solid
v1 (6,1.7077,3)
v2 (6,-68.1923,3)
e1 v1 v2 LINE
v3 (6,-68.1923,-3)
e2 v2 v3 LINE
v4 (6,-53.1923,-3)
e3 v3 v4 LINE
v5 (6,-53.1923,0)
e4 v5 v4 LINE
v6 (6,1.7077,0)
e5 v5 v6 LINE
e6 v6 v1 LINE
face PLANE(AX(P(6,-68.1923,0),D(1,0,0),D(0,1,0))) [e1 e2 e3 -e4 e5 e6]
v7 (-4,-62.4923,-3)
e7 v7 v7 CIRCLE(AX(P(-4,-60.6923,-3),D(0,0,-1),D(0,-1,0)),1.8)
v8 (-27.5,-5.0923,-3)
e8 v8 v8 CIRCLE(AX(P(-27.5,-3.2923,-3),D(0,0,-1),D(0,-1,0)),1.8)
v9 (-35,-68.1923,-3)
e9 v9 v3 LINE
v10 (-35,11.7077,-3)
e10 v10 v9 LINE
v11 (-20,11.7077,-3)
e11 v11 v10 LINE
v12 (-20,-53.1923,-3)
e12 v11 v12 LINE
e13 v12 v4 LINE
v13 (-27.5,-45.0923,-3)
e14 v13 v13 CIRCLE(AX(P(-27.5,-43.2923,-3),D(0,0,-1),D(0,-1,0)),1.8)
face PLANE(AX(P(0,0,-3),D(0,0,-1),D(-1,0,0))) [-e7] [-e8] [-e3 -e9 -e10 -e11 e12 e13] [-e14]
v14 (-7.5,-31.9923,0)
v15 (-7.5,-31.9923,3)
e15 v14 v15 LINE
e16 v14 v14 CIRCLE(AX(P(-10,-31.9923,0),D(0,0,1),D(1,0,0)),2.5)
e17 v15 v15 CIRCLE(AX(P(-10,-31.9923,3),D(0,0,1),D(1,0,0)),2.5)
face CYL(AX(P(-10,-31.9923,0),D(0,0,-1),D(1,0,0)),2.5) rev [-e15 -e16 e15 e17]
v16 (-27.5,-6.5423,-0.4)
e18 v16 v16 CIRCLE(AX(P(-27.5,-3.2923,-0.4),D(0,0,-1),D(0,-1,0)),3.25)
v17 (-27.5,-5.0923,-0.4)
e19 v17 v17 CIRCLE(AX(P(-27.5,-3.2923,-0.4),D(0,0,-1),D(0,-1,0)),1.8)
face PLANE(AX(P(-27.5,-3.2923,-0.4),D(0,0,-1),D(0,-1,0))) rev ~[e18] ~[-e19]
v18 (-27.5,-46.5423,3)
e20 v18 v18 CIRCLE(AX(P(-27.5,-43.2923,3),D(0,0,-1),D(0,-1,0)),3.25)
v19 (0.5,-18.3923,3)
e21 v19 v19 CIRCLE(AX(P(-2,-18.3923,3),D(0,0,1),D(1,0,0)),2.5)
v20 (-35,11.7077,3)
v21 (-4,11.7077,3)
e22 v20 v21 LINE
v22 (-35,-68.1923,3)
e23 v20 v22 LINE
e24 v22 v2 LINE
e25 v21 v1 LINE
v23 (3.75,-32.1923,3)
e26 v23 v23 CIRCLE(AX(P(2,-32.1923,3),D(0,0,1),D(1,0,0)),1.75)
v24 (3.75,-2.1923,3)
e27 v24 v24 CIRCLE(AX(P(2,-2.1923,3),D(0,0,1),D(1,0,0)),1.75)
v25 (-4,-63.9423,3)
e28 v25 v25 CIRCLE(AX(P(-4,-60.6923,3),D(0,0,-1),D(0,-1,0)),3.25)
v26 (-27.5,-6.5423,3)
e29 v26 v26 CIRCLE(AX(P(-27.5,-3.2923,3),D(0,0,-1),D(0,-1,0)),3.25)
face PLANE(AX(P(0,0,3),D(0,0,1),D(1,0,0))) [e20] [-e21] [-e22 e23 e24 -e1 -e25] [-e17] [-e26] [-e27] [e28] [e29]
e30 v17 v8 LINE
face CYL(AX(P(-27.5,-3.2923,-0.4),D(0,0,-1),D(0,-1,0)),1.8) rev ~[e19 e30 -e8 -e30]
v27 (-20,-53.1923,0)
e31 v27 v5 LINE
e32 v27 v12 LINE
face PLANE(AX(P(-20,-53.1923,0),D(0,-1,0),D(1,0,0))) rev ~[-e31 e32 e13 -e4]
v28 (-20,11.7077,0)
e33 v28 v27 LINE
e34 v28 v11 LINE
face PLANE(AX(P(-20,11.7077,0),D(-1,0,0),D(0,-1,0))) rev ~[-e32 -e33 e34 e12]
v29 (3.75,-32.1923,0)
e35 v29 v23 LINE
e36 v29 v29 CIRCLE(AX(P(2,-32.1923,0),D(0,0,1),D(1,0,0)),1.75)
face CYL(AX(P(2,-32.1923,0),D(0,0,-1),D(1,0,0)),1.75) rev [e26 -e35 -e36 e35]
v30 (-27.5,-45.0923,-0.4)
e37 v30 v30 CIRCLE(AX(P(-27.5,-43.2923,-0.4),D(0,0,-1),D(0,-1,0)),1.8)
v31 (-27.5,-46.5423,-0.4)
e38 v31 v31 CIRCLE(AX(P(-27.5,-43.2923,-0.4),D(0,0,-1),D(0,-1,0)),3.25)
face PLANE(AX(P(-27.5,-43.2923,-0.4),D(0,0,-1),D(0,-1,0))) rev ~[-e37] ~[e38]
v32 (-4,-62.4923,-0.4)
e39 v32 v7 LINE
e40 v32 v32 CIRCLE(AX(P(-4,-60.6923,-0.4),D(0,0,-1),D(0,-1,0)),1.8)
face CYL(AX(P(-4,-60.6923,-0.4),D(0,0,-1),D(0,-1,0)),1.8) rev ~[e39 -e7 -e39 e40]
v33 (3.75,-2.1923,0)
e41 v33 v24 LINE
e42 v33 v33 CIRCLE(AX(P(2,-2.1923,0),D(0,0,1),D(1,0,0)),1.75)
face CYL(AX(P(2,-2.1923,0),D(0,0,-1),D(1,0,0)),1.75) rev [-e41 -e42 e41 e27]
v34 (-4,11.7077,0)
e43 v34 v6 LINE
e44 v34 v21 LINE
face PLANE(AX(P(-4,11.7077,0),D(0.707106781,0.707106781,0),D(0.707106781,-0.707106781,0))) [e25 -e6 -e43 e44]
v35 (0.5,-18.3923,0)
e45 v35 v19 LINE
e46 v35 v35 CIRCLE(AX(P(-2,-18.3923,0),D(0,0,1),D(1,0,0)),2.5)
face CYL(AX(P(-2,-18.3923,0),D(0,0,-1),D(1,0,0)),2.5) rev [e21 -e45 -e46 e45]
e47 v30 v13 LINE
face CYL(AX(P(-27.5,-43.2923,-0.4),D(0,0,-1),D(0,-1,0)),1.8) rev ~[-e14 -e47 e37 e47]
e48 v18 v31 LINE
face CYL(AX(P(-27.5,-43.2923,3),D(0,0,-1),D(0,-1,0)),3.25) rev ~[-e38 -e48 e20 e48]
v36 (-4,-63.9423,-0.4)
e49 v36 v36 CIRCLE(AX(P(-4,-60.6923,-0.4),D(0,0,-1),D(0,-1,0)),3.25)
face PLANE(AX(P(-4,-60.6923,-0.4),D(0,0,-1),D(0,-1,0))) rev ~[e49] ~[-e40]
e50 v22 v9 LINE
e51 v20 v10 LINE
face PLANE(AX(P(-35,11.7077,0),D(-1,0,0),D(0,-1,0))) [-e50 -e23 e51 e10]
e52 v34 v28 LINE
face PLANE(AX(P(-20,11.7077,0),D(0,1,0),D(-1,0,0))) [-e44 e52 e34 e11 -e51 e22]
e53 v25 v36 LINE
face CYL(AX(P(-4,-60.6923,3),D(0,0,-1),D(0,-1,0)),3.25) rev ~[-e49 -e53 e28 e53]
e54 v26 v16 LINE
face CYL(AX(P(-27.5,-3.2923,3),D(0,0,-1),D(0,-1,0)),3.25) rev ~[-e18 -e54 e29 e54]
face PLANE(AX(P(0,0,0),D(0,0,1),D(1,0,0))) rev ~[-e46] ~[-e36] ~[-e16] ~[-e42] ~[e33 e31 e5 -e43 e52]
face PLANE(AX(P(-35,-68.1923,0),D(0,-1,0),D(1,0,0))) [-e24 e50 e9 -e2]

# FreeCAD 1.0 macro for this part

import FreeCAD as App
import Part
import Sketcher
from FreeCAD import Vector
Q = App.Units.Quantity

doc = App.newDocument("Part")
params = doc.addObject("Spreadsheet::Sheet", "Params")
for row, (alias, value) in enumerate([
    ("sketch1_diameter", "3.5 mm"),
    ("sketch1_diameter2", "5 mm"),
    ("sketch1_width", "31 mm"),
    ("sketch1_width2", "41 mm"),
    ("sketch1_height", "79.9 mm"),
    ("pad1_length", "3 mm"),
    ("sketch2_width", "15 mm"),
    ("sketch2_width2", "41 mm"),
    ("sketch2_height", "79.9 mm"),
    ("pad2_length", "3 mm"),
    ("sketch3_diameter", "3.6 mm"),
    ("hole_diameter", "3.6 mm"),
    ("hole_cbore_diameter", "6.5 mm"),
    ("hole_cbore_depth", "3.4 mm"),
], start=1):
    params.set(f"A{row}", alias)
    params.set(f"B{row}", "=" + value)
    params.setAlias(f"B{row}", alias)

body = doc.addObject("PartDesign::Body", "Body")

sketch1 = body.newObject("Sketcher::SketchObject", "Sketch")
sketch1.AttachmentSupport = (doc.getObject("XY_Plane"), [""])
sketch1.MapMode = "FlatFace"
sketch1.addGeometry([
    Part.LineSegment(Vector(6, 1.7077, 0), Vector(-4, 11.7077, 0)),
    Part.LineSegment(Vector(-4, 11.7077, 0), Vector(-35, 11.7077, 0)),
    Part.LineSegment(Vector(-35, 11.7077, 0), Vector(-35, -68.1923, 0)),
    Part.LineSegment(Vector(-35, -68.1923, 0), Vector(6, -68.1923, 0)),
    Part.LineSegment(Vector(6, -68.1923, 0), Vector(6, 1.7077, 0)),
    Part.Circle(Vector(2, -2.1923, 0), Vector(0, 0, 1), 1.75),
    Part.Circle(Vector(-10, -31.9923, 0), Vector(0, 0, 1), 2.5),
    Part.Circle(Vector(-2, -18.3923, 0), Vector(0, 0, 1), 2.5),
    Part.Circle(Vector(2, -32.1923, 0), Vector(0, 0, 1), 1.75),
], False)
sketch1.addConstraint([
    Sketcher.Constraint("Coincident", 0, 2, 1, 1),
    Sketcher.Constraint("Coincident", 1, 2, 2, 1),
    Sketcher.Constraint("Coincident", 2, 2, 3, 1),
    Sketcher.Constraint("Coincident", 3, 2, 4, 1),
    Sketcher.Constraint("Coincident", 4, 2, 0, 1),
    Sketcher.Constraint("Horizontal", 1),
    Sketcher.Constraint("Vertical", 2),
    Sketcher.Constraint("Horizontal", 3),
    Sketcher.Constraint("Vertical", 4),
    Sketcher.Constraint("Equal", 6, 7),
    Sketcher.Constraint("Equal", 5, 8),
    Sketcher.Constraint("Vertical", 5, 3, 8, 3),
    Sketcher.Constraint("Diameter", 5, Q("3.5 mm")),
    Sketcher.Constraint("Diameter", 6, Q("5 mm")),
    Sketcher.Constraint("DistanceX", 1, 2, 1, 1, Q("31 mm")),
    Sketcher.Constraint("DistanceX", 3, 1, 3, 2, Q("41 mm")),
    Sketcher.Constraint("Angle", 0, Q("135 deg")),
    Sketcher.Constraint("DistanceY", 2, 2, 2, 1, Q("79.9 mm")),
    Sketcher.Constraint("DistanceX", -1, 1, 5, 3, Q("2 mm")),
    Sketcher.Constraint("DistanceX", 6, 3, -1, 1, Q("10 mm")),
    Sketcher.Constraint("DistanceX", 7, 3, -1, 1, Q("2 mm")),
    Sketcher.Constraint("DistanceX", 0, 2, -1, 1, Q("4 mm")),
    Sketcher.Constraint("DistanceY", 8, 3, 5, 3, Q("30 mm")),
    Sketcher.Constraint("DistanceY", 2, 2, 8, 3, Q("36 mm")),
    Sketcher.Constraint("DistanceY", 6, 3, 5, 3, Q("29.8 mm")),
    Sketcher.Constraint("DistanceY", 6, 3, 7, 3, Q("13.6 mm")),
    Sketcher.Constraint("DistanceY", 5, 3, -1, 1, Q("2.1923 mm")),
])
sketch1.setExpression("Constraints[12]", "Params.sketch1_diameter")
sketch1.setExpression("Constraints[13]", "Params.sketch1_diameter2")
sketch1.setExpression("Constraints[14]", "Params.sketch1_width")
sketch1.setExpression("Constraints[15]", "Params.sketch1_width2")
sketch1.setExpression("Constraints[17]", "Params.sketch1_height")
pad1 = body.newObject("PartDesign::Pad", "Pad")
pad1.Profile = sketch1
pad1.setExpression("Length", "Params.pad1_length")

sketch2 = body.newObject("Sketcher::SketchObject", "Sketch001")
sketch2.AttachmentSupport = (doc.getObject("XY_Plane"), [""])
sketch2.MapMode = "FlatFace"
sketch2.addGeometry([
    Part.LineSegment(Vector(6, -53.1923, 0), Vector(6, -68.1923, 0)),
    Part.LineSegment(Vector(6, -68.1923, 0), Vector(-35, -68.1923, 0)),
    Part.LineSegment(Vector(-35, -68.1923, 0), Vector(-35, 11.7077, 0)),
    Part.LineSegment(Vector(-35, 11.7077, 0), Vector(-20, 11.7077, 0)),
    Part.LineSegment(Vector(-20, 11.7077, 0), Vector(-20, -53.1923, 0)),
    Part.LineSegment(Vector(-20, -53.1923, 0), Vector(6, -53.1923, 0)),
], False)
sketch2.addConstraint([
    Sketcher.Constraint("Coincident", 0, 2, 1, 1),
    Sketcher.Constraint("Coincident", 1, 2, 2, 1),
    Sketcher.Constraint("Coincident", 2, 2, 3, 1),
    Sketcher.Constraint("Coincident", 3, 2, 4, 1),
    Sketcher.Constraint("Coincident", 4, 2, 5, 1),
    Sketcher.Constraint("Coincident", 5, 2, 0, 1),
    Sketcher.Constraint("Vertical", 0),
    Sketcher.Constraint("Horizontal", 1),
    Sketcher.Constraint("Vertical", 2),
    Sketcher.Constraint("Horizontal", 3),
    Sketcher.Constraint("Vertical", 4),
    Sketcher.Constraint("Horizontal", 5),
    Sketcher.Constraint("Equal", 3, 0),
    Sketcher.Constraint("DistanceX", 3, 1, 3, 2, Q("15 mm")),
    Sketcher.Constraint("DistanceX", 1, 2, 1, 1, Q("41 mm")),
    Sketcher.Constraint("DistanceY", 2, 1, 2, 2, Q("79.9 mm")),
    Sketcher.Constraint("DistanceX", -1, 1, 0, 2, Q("6 mm")),
    Sketcher.Constraint("DistanceY", 0, 2, -1, 1, Q("68.1923 mm")),
])
sketch2.setExpression("Constraints[13]", "Params.sketch2_width")
sketch2.setExpression("Constraints[14]", "Params.sketch2_width2")
sketch2.setExpression("Constraints[15]", "Params.sketch2_height")
pad2 = body.newObject("PartDesign::Pad", "Pad001")
pad2.Profile = sketch2
pad2.setExpression("Length", "Params.pad2_length")
pad2.Reversed = True

sketch3 = body.newObject("Sketcher::SketchObject", "Sketch002")
sketch3.AttachmentSupport = (doc.getObject("XY_Plane"), [""])
sketch3.MapMode = "FlatFace"
sketch3.AttachmentOffset = App.Placement(Vector(0, 0, 3), App.Rotation())
sketch3.addGeometry([
    Part.Circle(Vector(-27.5, -3.2923, 0), Vector(0, 0, 1), 1.8),
    Part.Circle(Vector(-27.5, -43.2923, 0), Vector(0, 0, 1), 1.8),
    Part.Circle(Vector(-4, -60.6923, 0), Vector(0, 0, 1), 1.8),
], False)
sketch3.addConstraint([
    Sketcher.Constraint("Equal", 0, 1),
    Sketcher.Constraint("Equal", 1, 2),
    Sketcher.Constraint("Vertical", 0, 3, 1, 3),
    Sketcher.Constraint("Diameter", 0, Q("3.6 mm")),
    Sketcher.Constraint("DistanceX", 2, 3, -1, 1, Q("4 mm")),
    Sketcher.Constraint("DistanceY", 1, 3, 0, 3, Q("40 mm")),
    Sketcher.Constraint("DistanceX", 0, 3, -1, 1, Q("27.5 mm")),
    Sketcher.Constraint("DistanceY", 2, 3, 1, 3, Q("17.4 mm")),
    Sketcher.Constraint("DistanceY", 0, 3, -1, 1, Q("3.2923 mm")),
])
sketch3.setExpression("Constraints[3]", "Params.sketch3_diameter")
doc.recompute()
hole = body.newObject("PartDesign::Hole", "Hole")
hole.Profile = sketch3
hole.ThreadType = "None"
hole.setExpression("Diameter", "Params.hole_diameter")
hole.DepthType = "ThroughAll"
hole.HoleCutType = "Counterbore"
hole.setExpression("HoleCutDiameter", "Params.hole_cbore_diameter")
hole.setExpression("HoleCutDepth", "Params.hole_cbore_depth")

doc.recompute()
